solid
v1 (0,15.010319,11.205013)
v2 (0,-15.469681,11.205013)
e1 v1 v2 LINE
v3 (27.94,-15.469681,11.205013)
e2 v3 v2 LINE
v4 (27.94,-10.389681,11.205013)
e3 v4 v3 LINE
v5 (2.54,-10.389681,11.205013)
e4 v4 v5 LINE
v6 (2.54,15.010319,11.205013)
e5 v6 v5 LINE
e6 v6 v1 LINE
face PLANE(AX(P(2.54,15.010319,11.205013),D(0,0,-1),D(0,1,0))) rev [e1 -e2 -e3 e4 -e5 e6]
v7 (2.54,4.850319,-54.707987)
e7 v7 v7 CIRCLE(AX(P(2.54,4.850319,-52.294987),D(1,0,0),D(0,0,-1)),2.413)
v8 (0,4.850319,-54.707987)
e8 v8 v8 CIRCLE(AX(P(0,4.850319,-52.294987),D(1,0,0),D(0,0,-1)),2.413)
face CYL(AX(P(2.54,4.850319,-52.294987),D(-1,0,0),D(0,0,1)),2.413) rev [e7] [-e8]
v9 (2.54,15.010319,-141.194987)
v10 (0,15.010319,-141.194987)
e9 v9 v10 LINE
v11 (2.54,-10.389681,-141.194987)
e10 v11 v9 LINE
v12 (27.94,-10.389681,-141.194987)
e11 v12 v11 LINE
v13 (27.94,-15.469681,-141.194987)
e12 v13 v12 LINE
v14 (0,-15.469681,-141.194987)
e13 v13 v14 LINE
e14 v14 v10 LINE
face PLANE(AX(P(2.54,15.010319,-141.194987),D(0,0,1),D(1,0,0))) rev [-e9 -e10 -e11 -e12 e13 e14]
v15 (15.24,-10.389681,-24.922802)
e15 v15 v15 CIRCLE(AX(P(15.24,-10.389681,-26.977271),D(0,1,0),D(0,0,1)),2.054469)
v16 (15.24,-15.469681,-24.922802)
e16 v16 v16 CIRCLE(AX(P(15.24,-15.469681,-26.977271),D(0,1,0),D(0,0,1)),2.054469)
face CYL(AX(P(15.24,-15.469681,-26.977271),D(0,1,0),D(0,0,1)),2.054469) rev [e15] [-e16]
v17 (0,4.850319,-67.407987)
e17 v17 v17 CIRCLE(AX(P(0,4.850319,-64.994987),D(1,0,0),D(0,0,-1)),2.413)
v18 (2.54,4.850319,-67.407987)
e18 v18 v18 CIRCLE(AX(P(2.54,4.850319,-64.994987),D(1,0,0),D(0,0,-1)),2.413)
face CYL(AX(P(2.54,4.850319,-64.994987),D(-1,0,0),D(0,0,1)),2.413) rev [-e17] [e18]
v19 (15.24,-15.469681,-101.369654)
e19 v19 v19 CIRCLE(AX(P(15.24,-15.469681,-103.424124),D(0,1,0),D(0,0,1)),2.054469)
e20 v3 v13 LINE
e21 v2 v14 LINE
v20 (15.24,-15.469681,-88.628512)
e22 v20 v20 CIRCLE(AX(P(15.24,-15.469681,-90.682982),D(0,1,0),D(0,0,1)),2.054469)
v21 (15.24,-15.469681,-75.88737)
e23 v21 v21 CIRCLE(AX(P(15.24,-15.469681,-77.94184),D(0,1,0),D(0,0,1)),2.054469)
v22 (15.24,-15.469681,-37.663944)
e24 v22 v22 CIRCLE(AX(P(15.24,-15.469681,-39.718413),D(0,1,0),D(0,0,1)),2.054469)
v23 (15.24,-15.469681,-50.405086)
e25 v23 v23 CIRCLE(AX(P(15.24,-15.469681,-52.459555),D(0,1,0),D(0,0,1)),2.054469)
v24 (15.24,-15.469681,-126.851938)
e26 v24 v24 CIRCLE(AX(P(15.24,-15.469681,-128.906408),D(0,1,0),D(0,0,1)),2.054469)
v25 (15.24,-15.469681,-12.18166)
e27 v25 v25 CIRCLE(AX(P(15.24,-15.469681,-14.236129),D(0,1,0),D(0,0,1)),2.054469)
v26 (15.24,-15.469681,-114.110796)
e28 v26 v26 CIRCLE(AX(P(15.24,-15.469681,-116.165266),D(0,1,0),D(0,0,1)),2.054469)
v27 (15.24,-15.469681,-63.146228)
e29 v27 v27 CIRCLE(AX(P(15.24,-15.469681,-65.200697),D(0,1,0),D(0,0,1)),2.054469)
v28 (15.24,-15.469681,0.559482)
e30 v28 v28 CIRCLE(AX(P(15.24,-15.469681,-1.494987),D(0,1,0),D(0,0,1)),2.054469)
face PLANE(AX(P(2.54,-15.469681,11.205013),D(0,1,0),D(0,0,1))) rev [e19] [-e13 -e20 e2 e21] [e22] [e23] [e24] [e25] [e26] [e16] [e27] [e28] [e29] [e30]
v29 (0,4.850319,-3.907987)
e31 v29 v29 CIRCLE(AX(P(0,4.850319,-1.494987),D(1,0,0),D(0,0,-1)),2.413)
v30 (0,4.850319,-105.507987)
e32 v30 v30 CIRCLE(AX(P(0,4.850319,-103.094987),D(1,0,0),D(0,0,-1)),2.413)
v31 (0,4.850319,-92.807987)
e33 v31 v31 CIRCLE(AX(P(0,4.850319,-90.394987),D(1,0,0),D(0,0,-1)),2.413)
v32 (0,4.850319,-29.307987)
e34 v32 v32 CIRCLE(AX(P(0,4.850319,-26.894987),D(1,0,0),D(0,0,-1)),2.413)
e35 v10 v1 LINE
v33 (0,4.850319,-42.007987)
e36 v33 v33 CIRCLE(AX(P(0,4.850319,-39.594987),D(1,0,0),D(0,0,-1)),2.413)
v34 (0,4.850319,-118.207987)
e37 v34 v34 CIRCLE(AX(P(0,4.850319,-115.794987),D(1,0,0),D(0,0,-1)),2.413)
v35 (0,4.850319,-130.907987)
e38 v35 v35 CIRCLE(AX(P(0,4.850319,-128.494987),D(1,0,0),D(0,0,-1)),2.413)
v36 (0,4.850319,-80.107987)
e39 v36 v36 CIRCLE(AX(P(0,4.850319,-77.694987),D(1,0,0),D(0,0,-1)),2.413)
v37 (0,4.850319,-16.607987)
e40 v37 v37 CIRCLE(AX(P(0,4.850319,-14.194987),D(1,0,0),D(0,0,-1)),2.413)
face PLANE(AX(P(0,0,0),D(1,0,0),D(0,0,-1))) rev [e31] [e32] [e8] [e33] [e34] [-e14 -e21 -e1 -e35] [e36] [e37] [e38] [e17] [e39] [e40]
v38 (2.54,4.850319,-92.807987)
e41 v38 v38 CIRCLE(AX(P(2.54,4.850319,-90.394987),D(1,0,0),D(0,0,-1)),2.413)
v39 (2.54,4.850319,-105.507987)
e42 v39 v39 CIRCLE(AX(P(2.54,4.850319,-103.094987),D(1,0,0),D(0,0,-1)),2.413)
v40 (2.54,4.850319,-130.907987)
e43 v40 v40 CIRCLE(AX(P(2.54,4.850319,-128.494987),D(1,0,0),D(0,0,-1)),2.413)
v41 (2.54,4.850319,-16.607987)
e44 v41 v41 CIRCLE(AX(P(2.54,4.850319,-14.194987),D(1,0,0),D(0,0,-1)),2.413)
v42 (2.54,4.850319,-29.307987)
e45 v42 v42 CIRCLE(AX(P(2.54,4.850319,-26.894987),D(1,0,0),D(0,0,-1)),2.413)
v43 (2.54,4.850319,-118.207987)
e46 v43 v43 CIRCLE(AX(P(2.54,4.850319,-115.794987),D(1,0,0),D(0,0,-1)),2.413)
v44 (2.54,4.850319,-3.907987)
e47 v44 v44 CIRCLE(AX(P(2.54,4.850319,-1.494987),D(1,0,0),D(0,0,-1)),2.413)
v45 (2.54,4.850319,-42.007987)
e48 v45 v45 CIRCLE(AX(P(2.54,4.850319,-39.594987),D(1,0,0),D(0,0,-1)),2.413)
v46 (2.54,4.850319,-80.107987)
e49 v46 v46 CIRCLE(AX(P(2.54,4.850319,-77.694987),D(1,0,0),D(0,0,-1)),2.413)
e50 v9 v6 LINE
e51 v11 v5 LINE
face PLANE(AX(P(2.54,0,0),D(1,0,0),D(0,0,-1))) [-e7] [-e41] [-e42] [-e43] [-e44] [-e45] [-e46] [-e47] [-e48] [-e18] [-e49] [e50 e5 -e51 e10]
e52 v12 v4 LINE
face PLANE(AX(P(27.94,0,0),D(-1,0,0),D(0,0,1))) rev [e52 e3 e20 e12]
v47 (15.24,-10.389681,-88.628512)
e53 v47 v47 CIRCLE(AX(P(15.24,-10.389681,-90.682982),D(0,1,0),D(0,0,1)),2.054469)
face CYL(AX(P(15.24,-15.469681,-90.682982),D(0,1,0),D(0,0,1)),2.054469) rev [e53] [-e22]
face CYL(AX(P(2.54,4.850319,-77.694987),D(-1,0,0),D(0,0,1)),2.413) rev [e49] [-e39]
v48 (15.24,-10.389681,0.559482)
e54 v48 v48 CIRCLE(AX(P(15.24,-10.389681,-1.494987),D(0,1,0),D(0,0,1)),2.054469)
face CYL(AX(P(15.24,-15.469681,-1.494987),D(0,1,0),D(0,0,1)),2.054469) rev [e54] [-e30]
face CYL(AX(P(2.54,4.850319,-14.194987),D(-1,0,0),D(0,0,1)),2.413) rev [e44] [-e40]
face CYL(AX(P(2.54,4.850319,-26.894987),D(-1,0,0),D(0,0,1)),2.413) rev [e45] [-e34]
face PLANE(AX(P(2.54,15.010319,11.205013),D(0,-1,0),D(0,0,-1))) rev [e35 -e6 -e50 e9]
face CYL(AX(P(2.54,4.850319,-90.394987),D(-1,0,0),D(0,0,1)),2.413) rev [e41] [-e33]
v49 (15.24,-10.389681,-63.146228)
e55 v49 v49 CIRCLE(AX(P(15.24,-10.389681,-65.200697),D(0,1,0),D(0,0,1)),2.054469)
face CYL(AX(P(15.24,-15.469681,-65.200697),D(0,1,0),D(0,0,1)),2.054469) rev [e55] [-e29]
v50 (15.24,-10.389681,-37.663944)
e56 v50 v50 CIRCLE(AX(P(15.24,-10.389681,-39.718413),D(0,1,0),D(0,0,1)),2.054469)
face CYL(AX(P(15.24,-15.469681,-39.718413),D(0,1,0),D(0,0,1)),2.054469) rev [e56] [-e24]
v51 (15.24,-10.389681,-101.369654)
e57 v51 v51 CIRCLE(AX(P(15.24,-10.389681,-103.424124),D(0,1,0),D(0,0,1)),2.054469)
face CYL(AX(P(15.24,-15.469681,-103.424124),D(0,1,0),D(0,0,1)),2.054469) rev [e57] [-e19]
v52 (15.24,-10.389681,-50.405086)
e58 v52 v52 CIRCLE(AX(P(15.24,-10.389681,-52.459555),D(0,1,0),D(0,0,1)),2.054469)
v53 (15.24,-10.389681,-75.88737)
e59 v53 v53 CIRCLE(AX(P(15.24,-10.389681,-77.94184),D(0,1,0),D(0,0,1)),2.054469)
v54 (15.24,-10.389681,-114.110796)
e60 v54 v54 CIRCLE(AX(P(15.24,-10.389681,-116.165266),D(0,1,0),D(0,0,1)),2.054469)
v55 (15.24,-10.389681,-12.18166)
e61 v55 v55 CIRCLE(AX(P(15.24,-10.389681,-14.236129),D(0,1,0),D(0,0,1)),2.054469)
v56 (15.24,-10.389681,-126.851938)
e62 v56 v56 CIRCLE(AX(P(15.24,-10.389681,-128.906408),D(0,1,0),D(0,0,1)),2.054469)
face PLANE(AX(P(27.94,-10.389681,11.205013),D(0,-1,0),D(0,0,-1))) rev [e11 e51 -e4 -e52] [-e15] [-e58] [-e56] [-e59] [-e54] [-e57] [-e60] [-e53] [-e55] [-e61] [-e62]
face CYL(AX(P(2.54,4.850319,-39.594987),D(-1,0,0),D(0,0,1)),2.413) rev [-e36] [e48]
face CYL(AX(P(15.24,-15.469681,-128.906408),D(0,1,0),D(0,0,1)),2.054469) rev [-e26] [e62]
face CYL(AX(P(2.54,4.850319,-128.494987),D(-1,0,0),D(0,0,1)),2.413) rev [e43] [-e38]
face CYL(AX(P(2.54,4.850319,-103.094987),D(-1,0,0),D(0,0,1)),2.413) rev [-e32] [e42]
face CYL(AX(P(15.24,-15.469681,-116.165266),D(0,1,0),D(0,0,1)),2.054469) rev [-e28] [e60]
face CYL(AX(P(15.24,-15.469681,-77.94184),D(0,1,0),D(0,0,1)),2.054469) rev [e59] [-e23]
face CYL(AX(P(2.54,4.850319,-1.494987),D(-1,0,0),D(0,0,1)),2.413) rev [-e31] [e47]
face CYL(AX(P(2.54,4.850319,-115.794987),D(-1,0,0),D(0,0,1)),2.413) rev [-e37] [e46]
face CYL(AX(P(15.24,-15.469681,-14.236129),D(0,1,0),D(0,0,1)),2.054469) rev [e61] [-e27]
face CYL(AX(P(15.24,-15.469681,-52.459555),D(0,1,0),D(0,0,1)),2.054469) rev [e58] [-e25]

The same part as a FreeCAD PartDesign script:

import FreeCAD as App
import Part
import Sketcher
from FreeCAD import Vector
Q = App.Units.Quantity

doc = App.newDocument("Part")
body = doc.addObject("PartDesign::Body", "Body")

# Sketch on YZ plane
sketch1 = body.newObject("Sketcher::SketchObject", "Sketch")
sketch1.AttachmentSupport = (doc.getObject("YZ_Plane"), [""])
sketch1.MapMode = "FlatFace"
sketch1.addGeometry([
    Part.LineSegment(Vector(15, 11.2, 0), Vector(-15.5, 11.2, 0)),  # 0
    Part.LineSegment(Vector(-15.5, 11.2, 0), Vector(-15.5, -141.2, 0)),  # 1
    Part.LineSegment(Vector(-15.5, -141.2, 0), Vector(15, -141.2, 0)),  # 2
    Part.LineSegment(Vector(15, -141.2, 0), Vector(15, 11.2, 0)),  # 3
    Part.Circle(Vector(4.9, -1.5, 0), Vector(0, 0, 1), 2.4),  # 4
    Part.Circle(Vector(4.9, -14.2, 0), Vector(0, 0, 1), 2.4),  # 5
    Part.Circle(Vector(4.9, -26.9, 0), Vector(0, 0, 1), 2.4),  # 6
    Part.Circle(Vector(4.9, -39.6, 0), Vector(0, 0, 1), 2.4),  # 7
    Part.Circle(Vector(4.9, -52.3, 0), Vector(0, 0, 1), 2.4),  # 8
    Part.Circle(Vector(4.9, -65, 0), Vector(0, 0, 1), 2.4),  # 9
    Part.Circle(Vector(4.9, -77.7, 0), Vector(0, 0, 1), 2.4),  # 10
    Part.Circle(Vector(4.9, -90.4, 0), Vector(0, 0, 1), 2.4),  # 11
    Part.Circle(Vector(4.9, -103.1, 0), Vector(0, 0, 1), 2.4),  # 12
    Part.Circle(Vector(4.9, -115.8, 0), Vector(0, 0, 1), 2.4),  # 13
    Part.Circle(Vector(4.9, -128.5, 0), Vector(0, 0, 1), 2.4),  # 14
], False)
sketch1.addConstraint([
    Sketcher.Constraint("Coincident", 0, 2, 1, 1),
    Sketcher.Constraint("Coincident", 1, 2, 2, 1),
    Sketcher.Constraint("Coincident", 2, 2, 3, 1),
    Sketcher.Constraint("Coincident", 3, 2, 0, 1),
    Sketcher.Constraint("Horizontal", 0),
    Sketcher.Constraint("Vertical", 1),
    Sketcher.Constraint("Horizontal", 2),
    Sketcher.Constraint("Vertical", 3),
    Sketcher.Constraint("Equal", 4, 5),
    Sketcher.Constraint("Equal", 5, 6),
    Sketcher.Constraint("Equal", 6, 7),
    Sketcher.Constraint("Equal", 7, 8),
    Sketcher.Constraint("Equal", 8, 9),
    Sketcher.Constraint("Equal", 9, 10),
    Sketcher.Constraint("Equal", 10, 11),
    Sketcher.Constraint("Equal", 11, 12),
    Sketcher.Constraint("Equal", 12, 13),
    Sketcher.Constraint("Equal", 13, 14),
    Sketcher.Constraint("Vertical", 4, 3, 5, 3),
    Sketcher.Constraint("Vertical", 5, 3, 6, 3),
    Sketcher.Constraint("Vertical", 6, 3, 7, 3),
    Sketcher.Constraint("Vertical", 7, 3, 8, 3),
    Sketcher.Constraint("Vertical", 8, 3, 9, 3),
    Sketcher.Constraint("Vertical", 9, 3, 10, 3),
    Sketcher.Constraint("Vertical", 10, 3, 11, 3),
    Sketcher.Constraint("Vertical", 11, 3, 12, 3),
    Sketcher.Constraint("Vertical", 12, 3, 13, 3),
    Sketcher.Constraint("Vertical", 13, 3, 14, 3),
    Sketcher.Constraint("Diameter", 4, Q("0.19 in")),
    Sketcher.Constraint("DistanceY", 1, 2, 1, 1, Q("6 in")),
    Sketcher.Constraint("DistanceX", 0, 2, 0, 1, Q("1.2 in")),
    Sketcher.Constraint("DistanceY", 6, 3, 4, 3, Q("1 in")),
    Sketcher.Constraint("DistanceY", 7, 3, 5, 3, Q("1 in")),
    Sketcher.Constraint("DistanceY", 8, 3, 6, 3, Q("1 in")),
    Sketcher.Constraint("DistanceY", 9, 3, 7, 3, Q("1 in")),
    Sketcher.Constraint("DistanceY", 10, 3, 8, 3, Q("1 in")),
    Sketcher.Constraint("DistanceY", 11, 3, 9, 3, Q("1 in")),
    Sketcher.Constraint("DistanceY", 12, 3, 10, 3, Q("1 in")),
    Sketcher.Constraint("DistanceY", 13, 3, 11, 3, Q("1 in")),
    Sketcher.Constraint("DistanceY", 14, 3, 12, 3, Q("1 in")),
    Sketcher.Constraint("DistanceY", 5, 3, 0, 2, Q("1 in")),
    Sketcher.Constraint("DistanceY", 5, 3, 4, 3, Q("0.5 in")),
    Sketcher.Constraint("DistanceX", 0, 2, 4, 3, Q("0.8 in")),
    Sketcher.Constraint("DistanceX", -1, 1, 4, 3, Q("4.850319 mm")),
    Sketcher.Constraint("DistanceY", 4, 3, -1, 1, Q("1.494987 mm")),
])
pad1 = body.newObject("PartDesign::Pad", "Pad")
pad1.Profile = sketch1
pad1.Length = Q("0.1 in")

# Sketch on YZ plane
sketch2 = body.newObject("Sketcher::SketchObject", "Sketch001")
sketch2.AttachmentSupport = (doc.getObject("YZ_Plane"), [""])
sketch2.MapMode = "FlatFace"
sketch2.AttachmentOffset = App.Placement(Vector(0, 0, 0.1 * 25.4), App.Rotation())
sketch2.addGeometry([
    Part.LineSegment(Vector(-10, 11, 0), Vector(-15, 11, 0)),
    Part.LineSegment(Vector(-15, 11, 0), Vector(-15, -141, 0)),
    Part.LineSegment(Vector(-15, -141, 0), Vector(-10, -141, 0)),
    Part.LineSegment(Vector(-10, -141, 0), Vector(-10, 11, 0)),
], False)
sketch2.addConstraint([
    Sketcher.Constraint("Coincident", 0, 2, 1, 1),
    Sketcher.Constraint("Coincident", 1, 2, 2, 1),
    Sketcher.Constraint("Coincident", 2, 2, 3, 1),
    Sketcher.Constraint("Coincident", 3, 2, 0, 1),
    Sketcher.Constraint("Horizontal", 0),
    Sketcher.Constraint("Vertical", 1),
    Sketcher.Constraint("Horizontal", 2),
    Sketcher.Constraint("Vertical", 3),
    Sketcher.Constraint("DistanceY", 1, 2, 1, 1, Q("6 in")),
    Sketcher.Constraint("DistanceX", 0, 2, 0, 1, Q("0.2 in")),
    Sketcher.Constraint("DistanceX", 0, 2, -1, 1, Q("15.469681 mm")),
    Sketcher.Constraint("DistanceY", -1, 1, 0, 2, Q("11.205013 mm")),
])
pad2 = body.newObject("PartDesign::Pad", "Pad001")
pad2.Profile = sketch2
pad2.Length = Q("1 in")

# Sketch on XZ plane
sketch3 = body.newObject("Sketcher::SketchObject", "Sketch002")
sketch3.AttachmentSupport = (doc.getObject("XZ_Plane"), [""])
sketch3.MapMode = "FlatFace"
sketch3.AttachmentOffset = App.Placement(Vector(0, 0, 10.389681), App.Rotation())
sketch3.addGeometry([
    Part.Circle(Vector(15.2, -1.5, 0), Vector(0, 0, 1), 2.1),  # 0
    Part.Circle(Vector(15.2, -14.2, 0), Vector(0, 0, 1), 2.1),  # 1
    Part.Circle(Vector(15.2, -27, 0), Vector(0, 0, 1), 2.1),  # 2
    Part.Circle(Vector(15.2, -39.7, 0), Vector(0, 0, 1), 2.1),  # 3
    Part.Circle(Vector(15.2, -52.5, 0), Vector(0, 0, 1), 2.1),  # 4
    Part.Circle(Vector(15.2, -65.2, 0), Vector(0, 0, 1), 2.1),  # 5
    Part.Circle(Vector(15.2, -77.9, 0), Vector(0, 0, 1), 2.1),  # 6
    Part.Circle(Vector(15.2, -90.7, 0), Vector(0, 0, 1), 2.1),  # 7
    Part.Circle(Vector(15.2, -103.4, 0), Vector(0, 0, 1), 2.1),  # 8
    Part.Circle(Vector(15.2, -116.2, 0), Vector(0, 0, 1), 2.1),  # 9
    Part.Circle(Vector(15.2, -128.9, 0), Vector(0, 0, 1), 2.1),  # 10
], False)
sketch3.addConstraint([
    Sketcher.Constraint("Equal", 0, 1),
    Sketcher.Constraint("Equal", 1, 2),
    Sketcher.Constraint("Equal", 2, 3),
    Sketcher.Constraint("Equal", 3, 4),
    Sketcher.Constraint("Equal", 4, 5),
    Sketcher.Constraint("Equal", 5, 6),
    Sketcher.Constraint("Equal", 6, 7),
    Sketcher.Constraint("Equal", 7, 8),
    Sketcher.Constraint("Equal", 8, 9),
    Sketcher.Constraint("Equal", 9, 10),
    Sketcher.Constraint("Vertical", 0, 3, 1, 3),
    Sketcher.Constraint("Vertical", 1, 3, 2, 3),
    Sketcher.Constraint("Vertical", 2, 3, 3, 3),
    Sketcher.Constraint("Vertical", 3, 3, 4, 3),
    Sketcher.Constraint("Vertical", 4, 3, 5, 3),
    Sketcher.Constraint("Vertical", 5, 3, 6, 3),
    Sketcher.Constraint("Vertical", 6, 3, 7, 3),
    Sketcher.Constraint("Vertical", 7, 3, 8, 3),
    Sketcher.Constraint("Vertical", 8, 3, 9, 3),
    Sketcher.Constraint("Vertical", 9, 3, 10, 3),
    Sketcher.Constraint("DistanceX", -1, 1, 0, 3, Q("0.6 in")),
    Sketcher.Constraint("Diameter", 0, Q("4.108939 mm")),
    Sketcher.Constraint("DistanceY", 1, 3, -1, 1, Q("14.236129 mm")),
    Sketcher.Constraint("DistanceY", 2, 3, -1, 1, Q("26.977271 mm")),
    Sketcher.Constraint("DistanceY", 6, 3, -1, 1, Q("77.94184 mm")),
    Sketcher.Constraint("DistanceY", 7, 3, -1, 1, Q("90.682982 mm")),
    Sketcher.Constraint("DistanceY", 4, 3, 0, 3, Q("50.964568 mm")),
    Sketcher.Constraint("DistanceY", 5, 3, 1, 3, Q("50.964568 mm")),
    Sketcher.Constraint("DistanceY", 5, 3, 0, 3, Q("63.70571 mm")),
    Sketcher.Constraint("DistanceY", 7, 3, 3, 3, Q("50.964568 mm")),
    Sketcher.Constraint("DistanceY", 8, 3, 4, 3, Q("50.964568 mm")),
    Sketcher.Constraint("DistanceY", 9, 3, 5, 3, Q("50.964568 mm")),
    Sketcher.Constraint("DistanceY", 10, 3, 6, 3, Q("50.964568 mm")),
])
pocket1 = body.newObject("PartDesign::Pocket", "Pocket")
pocket1.Profile = sketch3
pocket1.Type = "ThroughAll"
pocket1.Reversed = True

doc.recompute()
